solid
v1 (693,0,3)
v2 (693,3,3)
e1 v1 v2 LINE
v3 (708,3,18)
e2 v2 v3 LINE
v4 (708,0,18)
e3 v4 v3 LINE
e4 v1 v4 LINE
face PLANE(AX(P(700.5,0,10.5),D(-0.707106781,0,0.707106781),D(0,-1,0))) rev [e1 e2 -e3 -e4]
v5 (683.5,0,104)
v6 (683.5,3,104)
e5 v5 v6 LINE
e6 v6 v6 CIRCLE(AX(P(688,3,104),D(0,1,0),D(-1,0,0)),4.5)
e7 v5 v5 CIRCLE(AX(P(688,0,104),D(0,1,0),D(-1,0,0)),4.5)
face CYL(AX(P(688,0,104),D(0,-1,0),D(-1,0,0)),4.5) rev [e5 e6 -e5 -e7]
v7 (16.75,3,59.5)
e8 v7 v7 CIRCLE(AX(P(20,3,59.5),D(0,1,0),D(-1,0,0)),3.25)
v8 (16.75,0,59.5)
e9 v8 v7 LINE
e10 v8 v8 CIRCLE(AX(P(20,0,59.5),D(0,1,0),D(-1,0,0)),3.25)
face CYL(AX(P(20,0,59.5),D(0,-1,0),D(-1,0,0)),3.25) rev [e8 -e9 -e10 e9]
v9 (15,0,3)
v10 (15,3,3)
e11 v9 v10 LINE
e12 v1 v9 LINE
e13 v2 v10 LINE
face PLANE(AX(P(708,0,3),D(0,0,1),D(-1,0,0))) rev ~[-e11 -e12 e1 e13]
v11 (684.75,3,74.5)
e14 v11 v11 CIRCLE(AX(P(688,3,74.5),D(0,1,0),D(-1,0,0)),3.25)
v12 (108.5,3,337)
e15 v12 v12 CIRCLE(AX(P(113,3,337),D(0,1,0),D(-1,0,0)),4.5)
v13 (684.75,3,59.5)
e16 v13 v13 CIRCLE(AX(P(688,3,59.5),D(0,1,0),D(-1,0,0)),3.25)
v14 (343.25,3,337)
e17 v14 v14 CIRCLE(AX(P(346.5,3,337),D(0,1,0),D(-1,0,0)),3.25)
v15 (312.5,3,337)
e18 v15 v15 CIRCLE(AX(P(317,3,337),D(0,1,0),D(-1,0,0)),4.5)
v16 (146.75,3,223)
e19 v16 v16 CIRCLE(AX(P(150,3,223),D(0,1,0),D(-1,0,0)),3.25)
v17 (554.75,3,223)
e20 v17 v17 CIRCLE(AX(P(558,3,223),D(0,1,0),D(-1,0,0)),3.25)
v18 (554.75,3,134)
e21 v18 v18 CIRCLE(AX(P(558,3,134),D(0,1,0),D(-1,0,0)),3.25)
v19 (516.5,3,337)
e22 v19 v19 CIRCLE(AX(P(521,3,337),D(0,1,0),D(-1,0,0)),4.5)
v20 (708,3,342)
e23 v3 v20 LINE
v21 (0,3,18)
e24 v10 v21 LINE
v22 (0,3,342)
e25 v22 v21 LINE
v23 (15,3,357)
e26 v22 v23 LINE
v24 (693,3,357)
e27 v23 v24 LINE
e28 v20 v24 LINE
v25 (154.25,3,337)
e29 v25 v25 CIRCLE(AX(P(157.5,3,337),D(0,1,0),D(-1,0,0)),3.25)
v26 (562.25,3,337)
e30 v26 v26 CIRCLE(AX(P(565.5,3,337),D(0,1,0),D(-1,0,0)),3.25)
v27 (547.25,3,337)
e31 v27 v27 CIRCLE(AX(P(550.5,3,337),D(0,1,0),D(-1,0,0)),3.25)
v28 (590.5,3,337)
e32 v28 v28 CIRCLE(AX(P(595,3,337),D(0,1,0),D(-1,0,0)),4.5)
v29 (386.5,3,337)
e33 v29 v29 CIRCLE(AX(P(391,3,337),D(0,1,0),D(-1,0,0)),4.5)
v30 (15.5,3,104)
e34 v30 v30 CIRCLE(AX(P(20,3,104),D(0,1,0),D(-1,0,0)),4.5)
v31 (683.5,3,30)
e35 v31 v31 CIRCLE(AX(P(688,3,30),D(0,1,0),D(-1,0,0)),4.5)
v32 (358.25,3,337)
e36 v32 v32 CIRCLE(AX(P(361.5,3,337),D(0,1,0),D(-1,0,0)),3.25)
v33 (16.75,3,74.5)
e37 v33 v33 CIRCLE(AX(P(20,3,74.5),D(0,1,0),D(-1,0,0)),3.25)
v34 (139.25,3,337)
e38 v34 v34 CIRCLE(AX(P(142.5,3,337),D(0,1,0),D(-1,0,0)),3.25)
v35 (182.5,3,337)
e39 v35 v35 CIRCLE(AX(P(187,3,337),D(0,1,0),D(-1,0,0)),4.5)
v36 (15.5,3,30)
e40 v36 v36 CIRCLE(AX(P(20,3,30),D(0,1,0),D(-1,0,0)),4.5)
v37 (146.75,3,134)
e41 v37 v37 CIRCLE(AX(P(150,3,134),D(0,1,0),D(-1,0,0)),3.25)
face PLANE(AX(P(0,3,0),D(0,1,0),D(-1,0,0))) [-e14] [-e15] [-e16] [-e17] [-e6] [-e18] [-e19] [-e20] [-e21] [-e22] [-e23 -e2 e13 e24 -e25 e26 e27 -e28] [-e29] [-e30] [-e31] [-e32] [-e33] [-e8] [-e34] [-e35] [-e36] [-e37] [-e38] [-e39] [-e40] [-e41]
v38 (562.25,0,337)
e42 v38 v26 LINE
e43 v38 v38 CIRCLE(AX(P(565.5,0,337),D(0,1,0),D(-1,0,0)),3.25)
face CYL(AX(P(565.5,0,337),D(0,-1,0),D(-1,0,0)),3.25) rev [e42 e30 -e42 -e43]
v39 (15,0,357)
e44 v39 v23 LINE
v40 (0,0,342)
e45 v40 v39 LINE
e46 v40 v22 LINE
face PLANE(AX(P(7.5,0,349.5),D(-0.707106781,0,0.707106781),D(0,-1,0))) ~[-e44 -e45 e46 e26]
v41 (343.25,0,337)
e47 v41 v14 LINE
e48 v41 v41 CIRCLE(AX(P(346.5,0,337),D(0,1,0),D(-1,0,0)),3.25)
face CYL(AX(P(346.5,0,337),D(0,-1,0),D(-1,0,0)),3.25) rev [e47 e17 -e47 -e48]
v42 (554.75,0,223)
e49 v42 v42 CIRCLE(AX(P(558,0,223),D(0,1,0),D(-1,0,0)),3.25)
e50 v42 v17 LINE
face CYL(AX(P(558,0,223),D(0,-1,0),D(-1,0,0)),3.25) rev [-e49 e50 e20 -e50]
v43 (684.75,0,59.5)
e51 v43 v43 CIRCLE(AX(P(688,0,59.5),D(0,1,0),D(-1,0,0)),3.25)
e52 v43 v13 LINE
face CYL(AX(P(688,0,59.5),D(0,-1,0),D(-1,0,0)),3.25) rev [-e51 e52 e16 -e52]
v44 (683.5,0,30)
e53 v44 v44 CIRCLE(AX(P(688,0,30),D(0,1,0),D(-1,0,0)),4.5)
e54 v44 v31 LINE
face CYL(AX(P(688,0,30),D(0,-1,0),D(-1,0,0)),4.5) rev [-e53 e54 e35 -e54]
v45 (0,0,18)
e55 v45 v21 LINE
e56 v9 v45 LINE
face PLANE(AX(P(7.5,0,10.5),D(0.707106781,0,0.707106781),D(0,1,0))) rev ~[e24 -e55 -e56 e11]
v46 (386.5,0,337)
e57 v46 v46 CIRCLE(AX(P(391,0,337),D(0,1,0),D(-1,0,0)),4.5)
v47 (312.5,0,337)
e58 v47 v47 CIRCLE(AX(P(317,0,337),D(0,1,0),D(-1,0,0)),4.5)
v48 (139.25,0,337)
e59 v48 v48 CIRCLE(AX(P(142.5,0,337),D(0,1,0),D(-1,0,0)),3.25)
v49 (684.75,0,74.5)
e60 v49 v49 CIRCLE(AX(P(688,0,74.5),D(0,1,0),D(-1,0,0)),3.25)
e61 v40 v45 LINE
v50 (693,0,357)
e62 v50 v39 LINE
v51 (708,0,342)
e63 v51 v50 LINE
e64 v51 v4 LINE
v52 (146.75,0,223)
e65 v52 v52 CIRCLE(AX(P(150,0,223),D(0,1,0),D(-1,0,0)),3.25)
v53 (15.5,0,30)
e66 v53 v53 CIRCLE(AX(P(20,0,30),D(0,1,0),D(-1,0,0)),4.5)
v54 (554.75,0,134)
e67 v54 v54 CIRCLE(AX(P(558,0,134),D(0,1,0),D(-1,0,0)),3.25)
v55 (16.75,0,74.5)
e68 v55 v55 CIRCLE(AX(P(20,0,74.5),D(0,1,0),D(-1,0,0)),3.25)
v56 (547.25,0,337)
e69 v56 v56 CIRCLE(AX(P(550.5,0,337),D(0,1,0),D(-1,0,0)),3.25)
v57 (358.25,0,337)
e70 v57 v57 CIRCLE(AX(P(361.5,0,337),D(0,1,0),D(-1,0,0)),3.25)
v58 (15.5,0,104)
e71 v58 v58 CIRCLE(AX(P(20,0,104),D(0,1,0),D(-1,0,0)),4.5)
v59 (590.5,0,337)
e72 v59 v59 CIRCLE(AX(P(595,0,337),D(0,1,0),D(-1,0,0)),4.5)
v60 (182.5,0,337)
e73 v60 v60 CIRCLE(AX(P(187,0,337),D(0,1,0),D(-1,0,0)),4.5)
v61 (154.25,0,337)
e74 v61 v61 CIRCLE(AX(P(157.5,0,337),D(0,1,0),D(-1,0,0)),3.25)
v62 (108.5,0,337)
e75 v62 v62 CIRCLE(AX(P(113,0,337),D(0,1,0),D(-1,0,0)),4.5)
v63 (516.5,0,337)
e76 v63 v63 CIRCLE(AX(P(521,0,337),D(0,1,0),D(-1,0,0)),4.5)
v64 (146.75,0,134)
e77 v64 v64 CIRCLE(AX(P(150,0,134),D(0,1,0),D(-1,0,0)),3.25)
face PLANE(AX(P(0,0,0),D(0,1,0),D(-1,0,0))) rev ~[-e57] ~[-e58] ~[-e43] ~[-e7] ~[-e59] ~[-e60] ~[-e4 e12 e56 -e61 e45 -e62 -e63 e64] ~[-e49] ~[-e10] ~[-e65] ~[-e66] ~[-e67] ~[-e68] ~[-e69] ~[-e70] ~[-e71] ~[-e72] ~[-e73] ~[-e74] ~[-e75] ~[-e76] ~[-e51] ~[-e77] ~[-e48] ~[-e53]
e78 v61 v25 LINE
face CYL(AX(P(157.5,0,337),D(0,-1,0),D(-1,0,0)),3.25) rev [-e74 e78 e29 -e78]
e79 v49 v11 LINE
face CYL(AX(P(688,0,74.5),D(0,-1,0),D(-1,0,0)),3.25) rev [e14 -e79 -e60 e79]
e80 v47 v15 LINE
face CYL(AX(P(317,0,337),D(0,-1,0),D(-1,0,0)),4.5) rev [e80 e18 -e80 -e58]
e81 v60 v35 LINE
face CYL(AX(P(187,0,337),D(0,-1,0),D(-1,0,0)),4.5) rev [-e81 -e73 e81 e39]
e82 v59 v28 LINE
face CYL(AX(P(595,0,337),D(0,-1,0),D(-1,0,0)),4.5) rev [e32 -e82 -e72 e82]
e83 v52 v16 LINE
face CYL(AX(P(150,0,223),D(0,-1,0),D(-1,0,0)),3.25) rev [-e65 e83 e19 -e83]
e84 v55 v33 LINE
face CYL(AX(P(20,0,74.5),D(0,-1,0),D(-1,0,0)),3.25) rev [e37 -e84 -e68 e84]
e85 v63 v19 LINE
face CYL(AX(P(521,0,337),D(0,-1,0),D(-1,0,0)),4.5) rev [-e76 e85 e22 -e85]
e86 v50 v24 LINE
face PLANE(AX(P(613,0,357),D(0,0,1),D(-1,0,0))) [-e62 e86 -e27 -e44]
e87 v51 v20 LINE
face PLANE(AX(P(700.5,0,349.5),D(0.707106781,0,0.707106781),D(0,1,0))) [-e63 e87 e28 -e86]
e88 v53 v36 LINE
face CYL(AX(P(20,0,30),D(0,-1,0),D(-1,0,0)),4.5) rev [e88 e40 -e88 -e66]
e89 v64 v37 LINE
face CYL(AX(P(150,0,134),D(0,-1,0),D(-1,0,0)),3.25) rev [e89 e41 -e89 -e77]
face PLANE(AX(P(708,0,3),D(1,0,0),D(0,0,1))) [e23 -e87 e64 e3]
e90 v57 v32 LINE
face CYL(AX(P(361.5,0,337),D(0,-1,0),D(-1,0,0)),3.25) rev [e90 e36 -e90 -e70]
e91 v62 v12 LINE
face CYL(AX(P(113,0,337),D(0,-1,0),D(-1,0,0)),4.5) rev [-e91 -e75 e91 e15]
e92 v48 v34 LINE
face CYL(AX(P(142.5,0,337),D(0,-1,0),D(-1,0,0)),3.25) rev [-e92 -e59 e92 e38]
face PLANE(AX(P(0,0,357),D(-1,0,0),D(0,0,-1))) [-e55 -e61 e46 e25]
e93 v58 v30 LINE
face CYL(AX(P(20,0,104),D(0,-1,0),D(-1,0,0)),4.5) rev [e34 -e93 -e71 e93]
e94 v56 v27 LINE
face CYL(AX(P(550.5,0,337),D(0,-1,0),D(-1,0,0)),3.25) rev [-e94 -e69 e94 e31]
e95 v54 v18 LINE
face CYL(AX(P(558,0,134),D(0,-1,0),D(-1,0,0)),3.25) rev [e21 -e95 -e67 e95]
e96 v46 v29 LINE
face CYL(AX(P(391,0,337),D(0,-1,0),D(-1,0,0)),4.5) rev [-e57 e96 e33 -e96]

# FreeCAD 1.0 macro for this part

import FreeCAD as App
import Part
import Sketcher
from FreeCAD import Vector


def edges_at(feature, points):
    """Names of the edges that pass closest to the given points."""
    edges = feature.Shape.Edges
    near = lambda p: min(range(len(edges)), key=lambda i: edges[i].distToShape(Part.Vertex(*p))[0])
    return sorted({f"Edge{near(p) + 1}" for p in points})


def add_polygon(sketch, points):
    """Adds a closed chain of lines whose ends are joined by coincident constraints."""
    first, n = sketch.GeometryCount, len(points)
    for a, b in zip(points, points[1:] + points[:1]):
        sketch.addGeometry(Part.LineSegment(App.Vector(*a, 0), App.Vector(*b, 0)), False)
    for i in range(n):
        sketch.addConstraint(Sketcher.Constraint("Coincident", first + i, 2, first + (i + 1) % n, 1))

doc = App.newDocument("Part")
body = doc.addObject("PartDesign::Body", "Body")

# Sketch on XZ plane
sketch1 = doc.addObject("Sketcher::SketchObject", "Sketch")
body.addObject(sketch1)
sketch1.AttachmentSupport = (doc.XZ_Plane, [""])
sketch1.MapMode = "FlatFace"
add_polygon(sketch1, [(708, 3), (0, 3), (0, 357), (708, 357)])  # lines 0-3
sketch1.addGeometry(Part.Circle(Vector(688, 30, 0), Vector(0, 0, 1), 4.5), False)  # 4
sketch1.addGeometry(Part.Circle(Vector(688, 59.5, 0), Vector(0, 0, 1), 3.2), False)  # 5
sketch1.addGeometry(Part.Circle(Vector(688, 74.5, 0), Vector(0, 0, 1), 3.2), False)  # 6
sketch1.addGeometry(Part.Circle(Vector(688, 104, 0), Vector(0, 0, 1), 4.5), False)  # 7
sketch1.addGeometry(Part.Circle(Vector(558, 134, 0), Vector(0, 0, 1), 3.2), False)  # 8
sketch1.addGeometry(Part.Circle(Vector(20, 30, 0), Vector(0, 0, 1), 4.5), False)  # 9
sketch1.addGeometry(Part.Circle(Vector(20, 59.5, 0), Vector(0, 0, 1), 3.2), False)  # 10
sketch1.addGeometry(Part.Circle(Vector(20, 74.5, 0), Vector(0, 0, 1), 3.2), False)  # 11
sketch1.addGeometry(Part.Circle(Vector(20, 104, 0), Vector(0, 0, 1), 4.5), False)  # 12
sketch1.addGeometry(Part.Circle(Vector(150, 134, 0), Vector(0, 0, 1), 3.2), False)  # 13
sketch1.addGeometry(Part.Circle(Vector(558, 223, 0), Vector(0, 0, 1), 3.2), False)  # 14
sketch1.addGeometry(Part.Circle(Vector(595, 337, 0), Vector(0, 0, 1), 4.5), False)  # 15
sketch1.addGeometry(Part.Circle(Vector(565.5, 337, 0), Vector(0, 0, 1), 3.2), False)  # 16
sketch1.addGeometry(Part.Circle(Vector(550.5, 337, 0), Vector(0, 0, 1), 3.2), False)  # 17
sketch1.addGeometry(Part.Circle(Vector(521, 337, 0), Vector(0, 0, 1), 4.5), False)  # 18
sketch1.addGeometry(Part.Circle(Vector(391, 337, 0), Vector(0, 0, 1), 4.5), False)  # 19
sketch1.addGeometry(Part.Circle(Vector(361.5, 337, 0), Vector(0, 0, 1), 3.2), False)  # 20
sketch1.addGeometry(Part.Circle(Vector(150, 223, 0), Vector(0, 0, 1), 3.2), False)  # 21
sketch1.addGeometry(Part.Circle(Vector(346.5, 337, 0), Vector(0, 0, 1), 3.2), False)  # 22
sketch1.addGeometry(Part.Circle(Vector(317, 337, 0), Vector(0, 0, 1), 4.5), False)  # 23
sketch1.addGeometry(Part.Circle(Vector(187, 337, 0), Vector(0, 0, 1), 4.5), False)  # 24
sketch1.addGeometry(Part.Circle(Vector(157.5, 337, 0), Vector(0, 0, 1), 3.2), False)  # 25
sketch1.addGeometry(Part.Circle(Vector(142.5, 337, 0), Vector(0, 0, 1), 3.2), False)  # 26
sketch1.addGeometry(Part.Circle(Vector(113, 337, 0), Vector(0, 0, 1), 4.5), False)  # 27
sketch1.addConstraint([
    Sketcher.Constraint("Horizontal", 0),
    Sketcher.Constraint("Vertical", 1),
    Sketcher.Constraint("Horizontal", 2),
    Sketcher.Constraint("Vertical", 3),
    Sketcher.Constraint("Equal", 5, 6),
    Sketcher.Constraint("Equal", 4, 7),
    Sketcher.Constraint("Equal", 6, 8),
    Sketcher.Constraint("Equal", 7, 9),
    Sketcher.Constraint("Equal", 8, 10),
    Sketcher.Constraint("Equal", 10, 11),
    Sketcher.Constraint("Equal", 9, 12),
    Sketcher.Constraint("Equal", 11, 13),
    Sketcher.Constraint("Equal", 13, 14),
    Sketcher.Constraint("Equal", 12, 15),
    Sketcher.Constraint("Equal", 14, 16),
    Sketcher.Constraint("Equal", 16, 17),
    Sketcher.Constraint("Equal", 15, 18),
    Sketcher.Constraint("Equal", 18, 19),
    Sketcher.Constraint("Equal", 17, 20),
    Sketcher.Constraint("Equal", 20, 21),
    Sketcher.Constraint("Equal", 21, 22),
    Sketcher.Constraint("Equal", 19, 23),
    Sketcher.Constraint("Equal", 23, 24),
    Sketcher.Constraint("Equal", 22, 25),
    Sketcher.Constraint("Equal", 25, 26),
    Sketcher.Constraint("Equal", 24, 27),
    Sketcher.Constraint("PointOnObject", 0, 2, -2),
    Sketcher.Constraint("Horizontal", 4, 3, 9, 3),
    Sketcher.Constraint("Horizontal", 5, 3, 10, 3),
    Sketcher.Constraint("Horizontal", 6, 3, 11, 3),
    Sketcher.Constraint("Horizontal", 7, 3, 12, 3),
    Sketcher.Constraint("Horizontal", 8, 3, 13, 3),
    Sketcher.Constraint("Horizontal", 15, 3, 16, 3),
    Sketcher.Constraint("Horizontal", 16, 3, 17, 3),
    Sketcher.Constraint("Horizontal", 17, 3, 18, 3),
    Sketcher.Constraint("Horizontal", 18, 3, 19, 3),
    Sketcher.Constraint("Horizontal", 19, 3, 20, 3),
    Sketcher.Constraint("Horizontal", 14, 3, 21, 3),
    Sketcher.Constraint("Horizontal", 20, 3, 22, 3),
    Sketcher.Constraint("Horizontal", 22, 3, 23, 3),
    Sketcher.Constraint("Horizontal", 23, 3, 24, 3),
    Sketcher.Constraint("Horizontal", 24, 3, 25, 3),
    Sketcher.Constraint("Horizontal", 25, 3, 26, 3),
    Sketcher.Constraint("Horizontal", 26, 3, 27, 3),
    Sketcher.Constraint("Vertical", 4, 3, 5, 3),
    Sketcher.Constraint("Vertical", 5, 3, 6, 3),
    Sketcher.Constraint("Vertical", 6, 3, 7, 3),
    Sketcher.Constraint("Vertical", 9, 3, 10, 3),
    Sketcher.Constraint("Vertical", 10, 3, 11, 3),
    Sketcher.Constraint("Vertical", 11, 3, 12, 3),
    Sketcher.Constraint("Vertical", 8, 3, 14, 3),
    Sketcher.Constraint("Vertical", 13, 3, 21, 3),
    Sketcher.Constraint("Diameter", 4, 9.0),
    Sketcher.Constraint("Diameter", 5, 6.5),
    Sketcher.Constraint("DistanceX", 0, 2, 0, 1, 708.0),
    Sketcher.Constraint("DistanceX", -1, 1, 9, 3, 20.0),
    Sketcher.Constraint("DistanceX", -1, 1, 13, 3, 150.0),
    Sketcher.Constraint("DistanceY", -1, 1, 0, 2, 3.0),
    Sketcher.Constraint("DistanceY", -1, 1, 1, 2, 357.0),
    Sketcher.Constraint("DistanceX", 14, 3, 15, 3, 37.0),
    Sketcher.Constraint("DistanceX", 18, 3, 14, 3, 37.0),
    Sketcher.Constraint("DistanceX", 21, 3, 24, 3, 37.0),
    Sketcher.Constraint("DistanceX", 27, 3, 21, 3, 37.0),
    Sketcher.Constraint("DistanceY", 27, 3, 1, 2, 20.0),
    Sketcher.Constraint("DistanceX", 14, 3, 2, 2, 150.0),
    Sketcher.Constraint("DistanceX", 4, 3, 3, 2, 20.0),
    Sketcher.Constraint("DistanceY", 4, 3, 6, 3, 44.5),
    Sketcher.Constraint("DistanceY", 5, 3, 7, 3, 44.5),
    Sketcher.Constraint("DistanceX", 14, 3, 16, 3, 7.5),
    Sketcher.Constraint("DistanceX", 17, 3, 15, 3, 44.5),
    Sketcher.Constraint("DistanceX", 22, 3, 19, 3, 44.5),
    Sketcher.Constraint("DistanceX", 23, 3, 20, 3, 44.5),
    Sketcher.Constraint("DistanceX", 21, 3, 25, 3, 7.5),
    Sketcher.Constraint("DistanceX", 26, 3, 24, 3, 44.5),
    Sketcher.Constraint("DistanceY", -1, 1, 4, 3, 30.0),
    Sketcher.Constraint("DistanceY", -1, 1, 7, 3, 104.0),
    Sketcher.Constraint("DistanceY", -1, 1, 8, 3, 134.0),
    Sketcher.Constraint("DistanceY", -1, 1, 14, 3, 223.0),
    Sketcher.Constraint("DistanceX", -1, 1, 19, 3, 391.0),
    Sketcher.Constraint("DistanceX", -1, 1, 23, 3, 317.0),
])
pad1 = doc.addObject("PartDesign::Pad", "Pad")
body.addObject(pad1)
pad1.Profile = sketch1
pad1.Length = 3
pad1.Reversed = True
doc.recompute()

chamfer = doc.addObject("PartDesign::Chamfer", "Chamfer")
body.addObject(chamfer)
chamfer.Base = (pad1, edges_at(pad1, [
    (0, 1.5, 357),
    (708, 1.5, 357),
    (708, 1.5, 3),
    (0, 1.5, 3),
]))
chamfer.Size = 15

doc.recompute()
